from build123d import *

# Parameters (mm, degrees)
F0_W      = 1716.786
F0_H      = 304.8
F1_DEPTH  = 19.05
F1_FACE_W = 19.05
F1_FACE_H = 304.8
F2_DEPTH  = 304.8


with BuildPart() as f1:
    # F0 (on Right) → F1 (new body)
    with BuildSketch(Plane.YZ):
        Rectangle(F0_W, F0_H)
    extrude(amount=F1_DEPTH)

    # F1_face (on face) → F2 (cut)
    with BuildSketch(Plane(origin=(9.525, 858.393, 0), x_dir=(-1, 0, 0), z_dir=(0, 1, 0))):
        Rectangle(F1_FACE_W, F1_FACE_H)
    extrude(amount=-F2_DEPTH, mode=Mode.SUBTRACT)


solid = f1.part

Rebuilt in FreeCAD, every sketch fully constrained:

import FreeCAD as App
import Part
import Sketcher
from FreeCAD import Vector
Q = App.Units.Quantity


def add_polygon(sketch, points):
    """Adds a closed chain of lines whose ends are joined by coincident constraints."""
    first, n = sketch.GeometryCount, len(points)
    for a, b in zip(points, points[1:] + points[:1]):
        sketch.addGeometry(Part.LineSegment(App.Vector(*a, 0), App.Vector(*b, 0)), False)
    for i in range(n):
        sketch.addConstraint(Sketcher.Constraint("Coincident", first + i, 2, first + (i + 1) % n, 1))

doc = App.newDocument("Part")
body = doc.addObject("PartDesign::Body", "Body")

sketch1 = body.newObject("Sketcher::SketchObject", "Sketch")
sketch1.AttachmentSupport = (doc.getObject("YZ_Plane"), [""])
sketch1.MapMode = "FlatFace"
add_polygon(sketch1, [(-858.393, 152.4), (-858.393, -152.4), (858.393, -152.4), (858.393, 152.4)])
sketch1.addConstraint(Sketcher.Constraint("Vertical", 0))
sketch1.addConstraint(Sketcher.Constraint("Horizontal", 1))
sketch1.addConstraint(Sketcher.Constraint("Vertical", 2))
sketch1.addConstraint(Sketcher.Constraint("Horizontal", 3))
sketch1.addConstraint(Sketcher.Constraint("Symmetric", 0, 2, 2, 2, -1, 1))
sketch1.addConstraint(Sketcher.Constraint("DistanceY", 0, 2, 0, 1, Q("12 in")))
sketch1.addConstraint(Sketcher.Constraint("DistanceX", 1, 1, 1, 2, Q("67.59 in")))
pad1 = body.newObject("PartDesign::Pad", "Pad")
pad1.Profile = sketch1
pad1.Length = Q("0.75 in")

sketch2 = body.newObject("Sketcher::SketchObject", "Sketch001")
sketch2.AttachmentSupport = (doc.getObject("XZ_Plane"), [""])
sketch2.MapMode = "FlatFace"
sketch2.AttachmentOffset = App.Placement(Vector(0, 0, -33.795 * 25.4), App.Rotation())
add_polygon(sketch2, [(19.05, 152.4), (19.05, -152.4), (0, -152.4), (0, 152.4)])
sketch2.addConstraint(Sketcher.Constraint("Vertical", 0))
sketch2.addConstraint(Sketcher.Constraint("Horizontal", 1))
sketch2.addConstraint(Sketcher.Constraint("Vertical", 2))
sketch2.addConstraint(Sketcher.Constraint("Horizontal", 3))
sketch2.addConstraint(Sketcher.Constraint("Symmetric", 1, 2, 2, 2, -1, 1))
sketch2.addConstraint(Sketcher.Constraint("DistanceY", 0, 2, 0, 1, Q("12 in")))
sketch2.addConstraint(Sketcher.Constraint("DistanceX", 1, 2, 1, 1, Q("0.75 in")))
pocket1 = body.newObject("PartDesign::Pocket", "Pocket")
pocket1.Profile = sketch2
pocket1.Length = Q("12 in")
pocket1.Reversed = True

doc.recompute()
